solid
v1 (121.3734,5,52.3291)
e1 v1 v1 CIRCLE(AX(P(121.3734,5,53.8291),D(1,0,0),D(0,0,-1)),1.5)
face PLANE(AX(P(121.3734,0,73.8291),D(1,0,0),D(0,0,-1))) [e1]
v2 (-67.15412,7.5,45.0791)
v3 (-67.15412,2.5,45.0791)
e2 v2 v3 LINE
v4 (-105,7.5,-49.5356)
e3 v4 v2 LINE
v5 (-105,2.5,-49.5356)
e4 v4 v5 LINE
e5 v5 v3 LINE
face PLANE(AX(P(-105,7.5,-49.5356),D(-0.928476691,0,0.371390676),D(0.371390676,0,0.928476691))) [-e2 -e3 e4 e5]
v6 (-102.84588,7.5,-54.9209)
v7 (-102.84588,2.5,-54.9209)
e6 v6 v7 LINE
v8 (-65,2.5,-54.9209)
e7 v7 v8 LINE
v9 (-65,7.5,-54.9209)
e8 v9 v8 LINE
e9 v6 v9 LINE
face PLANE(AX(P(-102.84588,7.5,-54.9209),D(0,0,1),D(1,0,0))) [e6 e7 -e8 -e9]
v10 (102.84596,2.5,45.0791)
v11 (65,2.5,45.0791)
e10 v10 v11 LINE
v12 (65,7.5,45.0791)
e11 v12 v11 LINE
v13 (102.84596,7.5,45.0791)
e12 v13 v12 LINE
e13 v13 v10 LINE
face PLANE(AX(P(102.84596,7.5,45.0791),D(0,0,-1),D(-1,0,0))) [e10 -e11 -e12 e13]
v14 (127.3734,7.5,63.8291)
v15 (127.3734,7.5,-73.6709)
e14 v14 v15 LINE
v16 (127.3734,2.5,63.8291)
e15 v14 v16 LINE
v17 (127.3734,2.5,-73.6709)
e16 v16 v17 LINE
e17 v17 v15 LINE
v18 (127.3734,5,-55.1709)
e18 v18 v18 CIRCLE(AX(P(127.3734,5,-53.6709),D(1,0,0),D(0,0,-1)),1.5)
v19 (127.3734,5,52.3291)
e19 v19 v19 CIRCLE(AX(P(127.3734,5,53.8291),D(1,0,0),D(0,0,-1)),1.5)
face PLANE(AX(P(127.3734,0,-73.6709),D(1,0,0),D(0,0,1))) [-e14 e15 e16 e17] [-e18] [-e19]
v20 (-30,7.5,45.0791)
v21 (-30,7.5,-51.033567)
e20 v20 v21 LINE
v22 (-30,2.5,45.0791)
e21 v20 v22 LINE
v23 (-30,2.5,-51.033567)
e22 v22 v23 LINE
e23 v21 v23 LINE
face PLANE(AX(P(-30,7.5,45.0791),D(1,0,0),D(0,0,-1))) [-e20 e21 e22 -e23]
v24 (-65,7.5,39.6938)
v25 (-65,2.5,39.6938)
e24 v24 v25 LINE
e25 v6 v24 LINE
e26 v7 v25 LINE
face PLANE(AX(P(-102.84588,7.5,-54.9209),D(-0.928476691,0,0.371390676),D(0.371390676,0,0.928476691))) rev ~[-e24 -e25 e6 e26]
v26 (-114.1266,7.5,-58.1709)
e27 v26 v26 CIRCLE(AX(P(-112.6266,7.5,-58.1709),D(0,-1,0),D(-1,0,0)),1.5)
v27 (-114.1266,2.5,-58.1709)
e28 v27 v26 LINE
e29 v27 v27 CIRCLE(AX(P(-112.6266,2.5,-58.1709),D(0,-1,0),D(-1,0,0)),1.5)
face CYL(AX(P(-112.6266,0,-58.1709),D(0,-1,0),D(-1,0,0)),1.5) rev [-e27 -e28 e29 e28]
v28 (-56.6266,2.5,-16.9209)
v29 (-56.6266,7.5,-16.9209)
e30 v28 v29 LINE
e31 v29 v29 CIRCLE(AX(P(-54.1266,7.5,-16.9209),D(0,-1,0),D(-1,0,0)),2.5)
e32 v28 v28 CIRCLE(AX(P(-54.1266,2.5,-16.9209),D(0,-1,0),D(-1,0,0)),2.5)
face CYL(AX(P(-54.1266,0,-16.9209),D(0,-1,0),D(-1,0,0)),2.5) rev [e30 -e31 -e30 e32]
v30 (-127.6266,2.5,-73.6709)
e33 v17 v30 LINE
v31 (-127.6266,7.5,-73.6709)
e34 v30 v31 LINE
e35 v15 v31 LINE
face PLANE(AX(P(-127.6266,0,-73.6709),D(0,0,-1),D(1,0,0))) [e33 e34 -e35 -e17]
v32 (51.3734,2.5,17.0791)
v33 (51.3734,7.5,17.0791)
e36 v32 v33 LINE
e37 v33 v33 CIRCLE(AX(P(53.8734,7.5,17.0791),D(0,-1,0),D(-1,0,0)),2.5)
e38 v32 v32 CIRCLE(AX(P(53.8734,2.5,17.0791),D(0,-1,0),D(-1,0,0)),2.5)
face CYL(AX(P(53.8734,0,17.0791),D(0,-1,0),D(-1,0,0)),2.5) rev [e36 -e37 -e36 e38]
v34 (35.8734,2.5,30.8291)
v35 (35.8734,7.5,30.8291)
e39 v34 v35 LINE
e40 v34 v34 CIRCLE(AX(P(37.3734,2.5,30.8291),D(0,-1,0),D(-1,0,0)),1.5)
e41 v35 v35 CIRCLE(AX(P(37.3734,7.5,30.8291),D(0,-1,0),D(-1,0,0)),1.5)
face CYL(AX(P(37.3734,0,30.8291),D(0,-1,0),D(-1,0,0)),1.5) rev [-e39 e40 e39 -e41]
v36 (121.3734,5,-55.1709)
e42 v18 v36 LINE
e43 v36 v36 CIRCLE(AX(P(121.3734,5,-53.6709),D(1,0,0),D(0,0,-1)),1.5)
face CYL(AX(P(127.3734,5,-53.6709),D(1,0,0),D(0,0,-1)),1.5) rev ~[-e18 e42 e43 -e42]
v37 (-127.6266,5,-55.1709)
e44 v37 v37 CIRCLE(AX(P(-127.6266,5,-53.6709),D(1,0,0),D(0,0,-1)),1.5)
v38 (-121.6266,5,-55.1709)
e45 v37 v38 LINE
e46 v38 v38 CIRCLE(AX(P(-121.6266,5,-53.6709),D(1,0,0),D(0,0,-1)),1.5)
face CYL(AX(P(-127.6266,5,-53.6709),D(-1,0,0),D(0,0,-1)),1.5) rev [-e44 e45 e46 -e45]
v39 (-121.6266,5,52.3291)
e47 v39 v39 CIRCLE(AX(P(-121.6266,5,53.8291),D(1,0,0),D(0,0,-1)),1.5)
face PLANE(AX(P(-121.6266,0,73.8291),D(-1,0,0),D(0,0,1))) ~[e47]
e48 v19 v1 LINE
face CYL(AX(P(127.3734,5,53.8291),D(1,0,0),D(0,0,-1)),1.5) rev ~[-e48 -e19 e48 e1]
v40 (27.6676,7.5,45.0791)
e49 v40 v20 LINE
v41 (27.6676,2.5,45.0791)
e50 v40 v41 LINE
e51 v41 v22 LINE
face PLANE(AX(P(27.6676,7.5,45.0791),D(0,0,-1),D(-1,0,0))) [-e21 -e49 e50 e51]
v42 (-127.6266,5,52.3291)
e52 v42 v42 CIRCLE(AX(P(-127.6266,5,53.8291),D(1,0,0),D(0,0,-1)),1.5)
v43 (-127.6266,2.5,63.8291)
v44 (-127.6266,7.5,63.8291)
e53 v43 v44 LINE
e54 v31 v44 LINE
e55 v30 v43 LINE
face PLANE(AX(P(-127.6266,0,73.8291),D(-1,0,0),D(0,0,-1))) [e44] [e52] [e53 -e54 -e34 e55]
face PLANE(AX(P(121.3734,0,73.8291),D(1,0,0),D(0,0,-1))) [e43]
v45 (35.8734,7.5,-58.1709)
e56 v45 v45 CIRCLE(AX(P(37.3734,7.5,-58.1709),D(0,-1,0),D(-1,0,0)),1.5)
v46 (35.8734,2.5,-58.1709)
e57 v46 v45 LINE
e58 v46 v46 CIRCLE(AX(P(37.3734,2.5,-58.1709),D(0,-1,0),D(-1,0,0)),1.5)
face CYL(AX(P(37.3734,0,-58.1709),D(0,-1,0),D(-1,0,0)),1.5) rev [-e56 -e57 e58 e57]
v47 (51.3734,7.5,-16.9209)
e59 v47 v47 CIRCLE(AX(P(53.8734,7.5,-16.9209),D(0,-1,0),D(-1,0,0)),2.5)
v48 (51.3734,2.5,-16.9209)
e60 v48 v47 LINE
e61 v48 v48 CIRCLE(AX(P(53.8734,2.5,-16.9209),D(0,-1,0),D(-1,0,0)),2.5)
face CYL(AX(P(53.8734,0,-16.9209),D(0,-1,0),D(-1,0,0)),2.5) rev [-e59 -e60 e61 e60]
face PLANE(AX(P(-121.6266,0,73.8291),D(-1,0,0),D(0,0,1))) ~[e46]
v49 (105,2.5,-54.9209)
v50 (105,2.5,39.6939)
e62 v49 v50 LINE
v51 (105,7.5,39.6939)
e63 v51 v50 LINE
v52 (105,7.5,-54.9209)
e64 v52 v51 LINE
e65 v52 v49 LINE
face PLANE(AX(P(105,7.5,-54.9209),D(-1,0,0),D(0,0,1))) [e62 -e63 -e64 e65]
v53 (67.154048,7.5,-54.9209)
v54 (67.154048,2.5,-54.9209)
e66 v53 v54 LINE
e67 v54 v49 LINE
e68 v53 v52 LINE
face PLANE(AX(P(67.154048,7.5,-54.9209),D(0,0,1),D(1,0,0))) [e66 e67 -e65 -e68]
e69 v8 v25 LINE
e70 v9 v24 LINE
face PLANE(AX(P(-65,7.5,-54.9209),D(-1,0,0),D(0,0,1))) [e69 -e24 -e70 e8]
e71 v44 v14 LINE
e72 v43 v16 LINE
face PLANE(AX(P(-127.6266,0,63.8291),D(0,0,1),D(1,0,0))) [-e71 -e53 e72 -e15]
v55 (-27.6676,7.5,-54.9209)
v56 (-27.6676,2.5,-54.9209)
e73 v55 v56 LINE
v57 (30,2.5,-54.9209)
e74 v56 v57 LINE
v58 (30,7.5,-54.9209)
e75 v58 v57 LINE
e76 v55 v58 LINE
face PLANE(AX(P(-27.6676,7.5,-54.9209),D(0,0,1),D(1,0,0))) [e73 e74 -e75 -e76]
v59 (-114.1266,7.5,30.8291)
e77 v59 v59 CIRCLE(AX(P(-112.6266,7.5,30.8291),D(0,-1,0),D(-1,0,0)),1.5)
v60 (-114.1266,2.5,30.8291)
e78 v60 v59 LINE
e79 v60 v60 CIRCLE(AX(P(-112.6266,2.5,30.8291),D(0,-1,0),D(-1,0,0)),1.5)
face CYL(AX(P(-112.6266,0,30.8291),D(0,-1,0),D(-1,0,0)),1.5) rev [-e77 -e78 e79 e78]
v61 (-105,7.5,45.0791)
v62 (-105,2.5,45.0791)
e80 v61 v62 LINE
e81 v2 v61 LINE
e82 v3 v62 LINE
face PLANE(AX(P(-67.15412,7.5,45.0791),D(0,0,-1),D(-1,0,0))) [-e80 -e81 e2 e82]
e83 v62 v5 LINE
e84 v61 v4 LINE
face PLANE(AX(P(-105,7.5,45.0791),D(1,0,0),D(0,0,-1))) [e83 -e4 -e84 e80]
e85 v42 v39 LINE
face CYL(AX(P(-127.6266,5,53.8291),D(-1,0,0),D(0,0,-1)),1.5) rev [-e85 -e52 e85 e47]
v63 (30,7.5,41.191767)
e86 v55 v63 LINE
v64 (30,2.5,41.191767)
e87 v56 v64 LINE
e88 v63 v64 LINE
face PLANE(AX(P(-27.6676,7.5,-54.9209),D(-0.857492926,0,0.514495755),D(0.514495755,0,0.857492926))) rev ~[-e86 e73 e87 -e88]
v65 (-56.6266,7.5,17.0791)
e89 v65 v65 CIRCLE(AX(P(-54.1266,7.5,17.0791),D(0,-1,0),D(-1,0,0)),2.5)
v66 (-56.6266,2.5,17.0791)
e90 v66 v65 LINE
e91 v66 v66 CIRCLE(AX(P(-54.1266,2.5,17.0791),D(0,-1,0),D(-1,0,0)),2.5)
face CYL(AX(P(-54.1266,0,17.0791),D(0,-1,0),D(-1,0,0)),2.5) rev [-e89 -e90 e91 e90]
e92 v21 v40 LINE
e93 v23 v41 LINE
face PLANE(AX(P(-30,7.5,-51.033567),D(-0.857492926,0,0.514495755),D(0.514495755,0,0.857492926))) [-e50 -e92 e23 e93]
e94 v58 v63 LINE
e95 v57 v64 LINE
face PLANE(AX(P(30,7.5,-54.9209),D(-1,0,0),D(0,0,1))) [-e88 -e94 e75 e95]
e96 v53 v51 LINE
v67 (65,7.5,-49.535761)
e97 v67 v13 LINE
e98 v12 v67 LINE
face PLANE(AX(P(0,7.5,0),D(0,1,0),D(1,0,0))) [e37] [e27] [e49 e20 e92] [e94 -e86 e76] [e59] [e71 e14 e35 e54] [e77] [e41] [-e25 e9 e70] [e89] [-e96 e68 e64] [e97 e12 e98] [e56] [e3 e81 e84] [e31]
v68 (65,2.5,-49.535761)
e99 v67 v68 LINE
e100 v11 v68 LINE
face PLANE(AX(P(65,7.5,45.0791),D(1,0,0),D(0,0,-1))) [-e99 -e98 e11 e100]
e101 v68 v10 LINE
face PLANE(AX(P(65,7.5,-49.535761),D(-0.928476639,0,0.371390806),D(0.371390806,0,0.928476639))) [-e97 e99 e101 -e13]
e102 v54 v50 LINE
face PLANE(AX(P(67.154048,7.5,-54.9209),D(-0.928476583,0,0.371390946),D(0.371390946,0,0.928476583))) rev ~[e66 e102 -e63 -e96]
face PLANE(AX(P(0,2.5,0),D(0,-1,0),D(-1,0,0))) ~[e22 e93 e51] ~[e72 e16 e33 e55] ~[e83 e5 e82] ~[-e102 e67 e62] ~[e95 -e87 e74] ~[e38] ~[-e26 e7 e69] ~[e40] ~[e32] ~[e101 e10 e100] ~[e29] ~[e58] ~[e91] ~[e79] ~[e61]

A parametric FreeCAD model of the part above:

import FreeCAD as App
import Part
import Sketcher

doc = App.newDocument("Part")
body = doc.addObject("PartDesign::Body", "Body")

sketch1 = body.newObject("Sketcher::SketchObject", "Sketch")
sketch1.AttachmentSupport = (doc.getObject("XZ_Plane"), [""])
sketch1.MapMode = "FlatFace"
sketch1.addGeometry(Part.LineSegment(App.Vector(-127.6, 73.8, 0), App.Vector(127.4, 73.8, 0)), False)
sketch1.addGeometry(Part.LineSegment(App.Vector(127.4, 73.8, 0), App.Vector(127.4, -73.7, 0)), False)
sketch1.addGeometry(Part.LineSegment(App.Vector(127.4, -73.7, 0), App.Vector(-127.6, -73.7, 0)), False)
sketch1.addGeometry(Part.LineSegment(App.Vector(-127.6, -73.7, 0), App.Vector(-127.6, 73.8, 0)), False)
sketch1.addGeometry(Part.Circle(App.Vector(37.4, -58.2, 0), App.Vector(0, 0, 1), 1.5), False)
sketch1.addGeometry(Part.Circle(App.Vector(53.9, -16.9, 0), App.Vector(0, 0, 1), 2.5), False)
sketch1.addGeometry(Part.Circle(App.Vector(-112.6, -58.2, 0), App.Vector(0, 0, 1), 1.5), False)
sketch1.addGeometry(Part.Circle(App.Vector(-54.1, -16.9, 0), App.Vector(0, 0, 1), 2.5), False)
sketch1.addGeometry(Part.Circle(App.Vector(53.9, 17.1, 0), App.Vector(0, 0, 1), 2.5), False)
sketch1.addGeometry(Part.Circle(App.Vector(37.4, 30.8, 0), App.Vector(0, 0, 1), 1.5), False)
sketch1.addGeometry(Part.Circle(App.Vector(-54.1, 17.1, 0), App.Vector(0, 0, 1), 2.5), False)
sketch1.addGeometry(Part.Circle(App.Vector(-112.6, 30.8, 0), App.Vector(0, 0, 1), 1.5), False)
sketch1.addConstraint(Sketcher.Constraint("Coincident", 0, 2, 1, 1))
sketch1.addConstraint(Sketcher.Constraint("Coincident", 1, 2, 2, 1))
sketch1.addConstraint(Sketcher.Constraint("Coincident", 2, 2, 3, 1))
sketch1.addConstraint(Sketcher.Constraint("Coincident", 3, 2, 0, 1))
sketch1.addConstraint(Sketcher.Constraint("Horizontal", 0))
sketch1.addConstraint(Sketcher.Constraint("Vertical", 1))
sketch1.addConstraint(Sketcher.Constraint("Horizontal", 2))
sketch1.addConstraint(Sketcher.Constraint("Vertical", 3))
sketch1.addConstraint(Sketcher.Constraint("Equal", 4, 6))
sketch1.addConstraint(Sketcher.Constraint("Equal", 5, 7))
sketch1.addConstraint(Sketcher.Constraint("Equal", 7, 8))
sketch1.addConstraint(Sketcher.Constraint("Equal", 6, 9))
sketch1.addConstraint(Sketcher.Constraint("Equal", 8, 10))
sketch1.addConstraint(Sketcher.Constraint("Equal", 9, 11))
sketch1.addConstraint(Sketcher.Constraint("Horizontal", 4, 3, 6, 3))
sketch1.addConstraint(Sketcher.Constraint("Horizontal", 5, 3, 7, 3))
sketch1.addConstraint(Sketcher.Constraint("Horizontal", 8, 3, 10, 3))
sketch1.addConstraint(Sketcher.Constraint("Horizontal", 9, 3, 11, 3))
sketch1.addConstraint(Sketcher.Constraint("Vertical", 5, 3, 8, 3))
sketch1.addConstraint(Sketcher.Constraint("Vertical", 4, 3, 9, 3))
sketch1.addConstraint(Sketcher.Constraint("Vertical", 7, 3, 10, 3))
sketch1.addConstraint(Sketcher.Constraint("Vertical", 6, 3, 11, 3))
sketch1.addConstraint(Sketcher.Constraint("Diameter", 4, 3.0))
sketch1.addConstraint(Sketcher.Constraint("Diameter", 5, 5.0))
sketch1.addConstraint(Sketcher.Constraint("DistanceX", 0, 1, 0, 2, 255.0))
sketch1.addConstraint(Sketcher.Constraint("DistanceY", 1, 2, 1, 1, 147.5))
sketch1.addConstraint(Sketcher.Constraint("DistanceX", 6, 3, 4, 3, 150.0))
sketch1.addConstraint(Sketcher.Constraint("DistanceX", 7, 3, 5, 3, 108.0))
sketch1.addConstraint(Sketcher.Constraint("DistanceY", 5, 3, 8, 3, 34.0))
sketch1.addConstraint(Sketcher.Constraint("DistanceY", 4, 3, 9, 3, 89.0))
sketch1.addConstraint(Sketcher.Constraint("DistanceX", 9, 3, 0, 2, 90.0))
sketch1.addConstraint(Sketcher.Constraint("DistanceY", 9, 3, 0, 2, 43.0))
sketch1.addConstraint(Sketcher.Constraint("DistanceX", 4, 3, 5, 3, 16.5))
sketch1.addConstraint(Sketcher.Constraint("DistanceY", 4, 3, 5, 3, 41.25))
sketch1.addConstraint(Sketcher.Constraint("DistanceY", 4, 3, -1, 1, 58.171))
sketch1.addConstraint(Sketcher.Constraint("DistanceX", -1, 1, 4, 3, 37.3734))
pad1 = body.newObject("PartDesign::Pad", "Pad")
pad1.Profile = sketch1
pad1.Length = 10
pad1.Reversed = True

sketch2 = body.newObject("Sketcher::SketchObject", "Sketch001")
sketch2.AttachmentSupport = (doc.getObject("YZ_Plane"), [""])
sketch2.MapMode = "FlatFace"
sketch2.AttachmentOffset = App.Placement(App.Vector(0, 0, 127.3734), App.Rotation())
sketch2.addGeometry(Part.Circle(App.Vector(5, -53.7, 0), App.Vector(0, 0, 1), 1.5), False)
sketch2.addGeometry(Part.Circle(App.Vector(5, 53.8, 0), App.Vector(0, 0, 1), 1.5), False)
sketch2.addConstraint(Sketcher.Constraint("Equal", 0, 1))
sketch2.addConstraint(Sketcher.Constraint("Vertical", 0, 3, 1, 3))
sketch2.addConstraint(Sketcher.Constraint("Diameter", 0, 3.0))
sketch2.addConstraint(Sketcher.Constraint("DistanceX", -1, 1, 0, 3, 5.0))
sketch2.addConstraint(Sketcher.Constraint("DistanceY", 0, 3, 1, 3, 107.5))
sketch2.addConstraint(Sketcher.Constraint("DistanceY", 0, 3, -1, 1, 53.671))
pocket1 = body.newObject("PartDesign::Pocket", "Pocket")
pocket1.Profile = sketch2
pocket1.Length = 6
doc.recompute()

datumplane = body.newObject("PartDesign::Plane", "DatumPlane")
datumplane.AttachmentSupport = (doc.getObject("YZ_Plane"), [""])
datumplane.MapMode = "FlatFace"
datumplane.AttachmentOffset = App.Placement(App.Vector(0, 0, -0.1266), App.Rotation())
mirrored = body.newObject("PartDesign::Mirrored", "Mirrored")
mirrored.Originals = [pocket1]
mirrored.MirrorPlane = (datumplane, [""])
body.Tip = mirrored

sketch3 = body.newObject("Sketcher::SketchObject", "Sketch002")
sketch3.AttachmentSupport = (doc.getObject("XY_Plane"), [""])
sketch3.MapMode = "FlatFace"
sketch3.AttachmentOffset = App.Placement(App.Vector(0, 0, 73.8291), App.Rotation())
sketch3.addGeometry(Part.LineSegment(App.Vector(127, 0, 0), App.Vector(127, 10, 0)), False)
sketch3.addGeometry(Part.LineSegment(App.Vector(127, 10, 0), App.Vector(-128, 10, 0)), False)
sketch3.addGeometry(Part.LineSegment(App.Vector(-128, 10, 0), App.Vector(-128, 0, 0)), False)
sketch3.addGeometry(Part.LineSegment(App.Vector(-128, 0, 0), App.Vector(127, 0, 0)), False)
sketch3.addConstraint(Sketcher.Constraint("Coincident", 0, 2, 1, 1))
sketch3.addConstraint(Sketcher.Constraint("Coincident", 1, 2, 2, 1))
sketch3.addConstraint(Sketcher.Constraint("Coincident", 2, 2, 3, 1))
sketch3.addConstraint(Sketcher.Constraint("Coincident", 3, 2, 0, 1))
sketch3.addConstraint(Sketcher.Constraint("Vertical", 0))
sketch3.addConstraint(Sketcher.Constraint("Horizontal", 1))
sketch3.addConstraint(Sketcher.Constraint("Vertical", 2))
sketch3.addConstraint(Sketcher.Constraint("Horizontal", 3))
sketch3.addConstraint(Sketcher.Constraint("PointOnObject", 2, 2, -1))
sketch3.addConstraint(Sketcher.Constraint("DistanceX", 1, 2, 1, 1, 255.0))
sketch3.addConstraint(Sketcher.Constraint("DistanceY", 0, 1, 0, 2, 10.0))
sketch3.addConstraint(Sketcher.Constraint("DistanceX", -1, 1, 0, 2, 127.3734))
pocket2 = body.newObject("PartDesign::Pocket", "Pocket001")
pocket2.Profile = sketch3
pocket2.Length = 10

sketch4 = body.newObject("Sketcher::SketchObject", "Sketch003")
sketch4.AttachmentSupport = (doc.getObject("XZ_Plane"), [""])
sketch4.MapMode = "FlatFace"
sketch4.AttachmentOffset = App.Placement(App.Vector(0, 0, -10), App.Rotation())
sketch4.addGeometry(Part.LineSegment(App.Vector(-128, 64, 0), App.Vector(127, 64, 0)), False)
sketch4.addGeometry(Part.LineSegment(App.Vector(127, 64, 0), App.Vector(127, -74, 0)), False)
sketch4.addGeometry(Part.LineSegment(App.Vector(127, -74, 0), App.Vector(-128, -74, 0)), False)
sketch4.addGeometry(Part.LineSegment(App.Vector(-128, -74, 0), App.Vector(-128, 64, 0)), False)
sketch4.addConstraint(Sketcher.Constraint("Coincident", 0, 2, 1, 1))
sketch4.addConstraint(Sketcher.Constraint("Coincident", 1, 2, 2, 1))
sketch4.addConstraint(Sketcher.Constraint("Coincident", 2, 2, 3, 1))
sketch4.addConstraint(Sketcher.Constraint("Coincident", 3, 2, 0, 1))
sketch4.addConstraint(Sketcher.Constraint("Horizontal", 0))
sketch4.addConstraint(Sketcher.Constraint("Vertical", 1))
sketch4.addConstraint(Sketcher.Constraint("Horizontal", 2))
sketch4.addConstraint(Sketcher.Constraint("Vertical", 3))
sketch4.addConstraint(Sketcher.Constraint("DistanceX", 0, 1, 0, 2, 255.0))
sketch4.addConstraint(Sketcher.Constraint("DistanceY", 1, 2, 1, 1, 137.5))
sketch4.addConstraint(Sketcher.Constraint("DistanceY", -1, 1, 0, 2, 63.829))
sketch4.addConstraint(Sketcher.Constraint("DistanceX", -1, 1, 0, 2, 127.3734))
pocket3 = body.newObject("PartDesign::Pocket", "Pocket002")
pocket3.Profile = sketch4
pocket3.Length = 2.5
pocket3.Reversed = True
doc.recompute()

datumplane2 = body.newObject("PartDesign::Plane", "DatumPlane001")
datumplane2.AttachmentSupport = (doc.getObject("XZ_Plane"), [""])
datumplane2.MapMode = "FlatFace"
datumplane2.AttachmentOffset = App.Placement(App.Vector(0, 0, -5), App.Rotation())
mirrored2 = body.newObject("PartDesign::Mirrored", "Mirrored001")
mirrored2.Originals = [pocket3]
mirrored2.MirrorPlane = (datumplane2, [""])
body.Tip = mirrored2

sketch5 = body.newObject("Sketcher::SketchObject", "Sketch004")
sketch5.AttachmentSupport = (doc.getObject("XZ_Plane"), [""])
sketch5.MapMode = "FlatFace"
sketch5.AttachmentOffset = App.Placement(App.Vector(0, 0, -7.5), App.Rotation())
sketch5.addGeometry(Part.LineSegment(App.Vector(105, -55, 0), App.Vector(67, -55, 0)), False)
sketch5.addGeometry(Part.LineSegment(App.Vector(67, -55, 0), App.Vector(105, 40, 0)), False)
sketch5.addGeometry(Part.LineSegment(App.Vector(105, 40, 0), App.Vector(105, -55, 0)), False)
sketch5.addGeometry(Part.LineSegment(App.Vector(103, 45, 0), App.Vector(65, -50, 0)), False)
sketch5.addGeometry(Part.LineSegment(App.Vector(65, -50, 0), App.Vector(65, 45, 0)), False)
sketch5.addGeometry(Part.LineSegment(App.Vector(65, 45, 0), App.Vector(103, 45, 0)), False)
sketch5.addGeometry(Part.LineSegment(App.Vector(30, -55, 0), App.Vector(-28, -55, 0)), False)
sketch5.addGeometry(Part.LineSegment(App.Vector(-28, -55, 0), App.Vector(30, 41, 0)), False)
sketch5.addGeometry(Part.LineSegment(App.Vector(30, 41, 0), App.Vector(30, -55, 0)), False)
sketch5.addGeometry(Part.LineSegment(App.Vector(28, 45, 0), App.Vector(-30, -51, 0)), False)
sketch5.addGeometry(Part.LineSegment(App.Vector(-30, -51, 0), App.Vector(-30, 45, 0)), False)
sketch5.addGeometry(Part.LineSegment(App.Vector(-30, 45, 0), App.Vector(28, 45, 0)), False)
sketch5.addGeometry(Part.LineSegment(App.Vector(-65, -55, 0), App.Vector(-103, -55, 0)), False)
sketch5.addGeometry(Part.LineSegment(App.Vector(-103, -55, 0), App.Vector(-65, 40, 0)), False)
sketch5.addGeometry(Part.LineSegment(App.Vector(-65, 40, 0), App.Vector(-65, -55, 0)), False)
sketch5.addGeometry(Part.LineSegment(App.Vector(-67, 45, 0), App.Vector(-105, -50, 0)), False)
sketch5.addGeometry(Part.LineSegment(App.Vector(-105, -50, 0), App.Vector(-105, 45, 0)), False)
sketch5.addGeometry(Part.LineSegment(App.Vector(-105, 45, 0), App.Vector(-67, 45, 0)), False)
sketch5.addConstraint(Sketcher.Constraint("Coincident", 0, 2, 1, 1))
sketch5.addConstraint(Sketcher.Constraint("Coincident", 1, 2, 2, 1))
sketch5.addConstraint(Sketcher.Constraint("Coincident", 2, 2, 0, 1))
sketch5.addConstraint(Sketcher.Constraint("Coincident", 3, 2, 4, 1))
sketch5.addConstraint(Sketcher.Constraint("Coincident", 4, 2, 5, 1))
sketch5.addConstraint(Sketcher.Constraint("Coincident", 5, 2, 3, 1))
sketch5.addConstraint(Sketcher.Constraint("Coincident", 6, 2, 7, 1))
sketch5.addConstraint(Sketcher.Constraint("Coincident", 7, 2, 8, 1))
sketch5.addConstraint(Sketcher.Constraint("Coincident", 8, 2, 6, 1))
sketch5.addConstraint(Sketcher.Constraint("Coincident", 9, 2, 10, 1))
sketch5.addConstraint(Sketcher.Constraint("Coincident", 10, 2, 11, 1))
sketch5.addConstraint(Sketcher.Constraint("Coincident", 11, 2, 9, 1))
sketch5.addConstraint(Sketcher.Constraint("Coincident", 12, 2, 13, 1))
sketch5.addConstraint(Sketcher.Constraint("Coincident", 13, 2, 14, 1))
sketch5.addConstraint(Sketcher.Constraint("Coincident", 14, 2, 12, 1))
sketch5.addConstraint(Sketcher.Constraint("Coincident", 15, 2, 16, 1))
sketch5.addConstraint(Sketcher.Constraint("Coincident", 16, 2, 17, 1))
sketch5.addConstraint(Sketcher.Constraint("Coincident", 17, 2, 15, 1))
sketch5.addConstraint(Sketcher.Constraint("Horizontal", 0))
sketch5.addConstraint(Sketcher.Constraint("Vertical", 2))
sketch5.addConstraint(Sketcher.Constraint("Vertical", 4))
sketch5.addConstraint(Sketcher.Constraint("Horizontal", 5))
sketch5.addConstraint(Sketcher.Constraint("Horizontal", 6))
sketch5.addConstraint(Sketcher.Constraint("Vertical", 8))
sketch5.addConstraint(Sketcher.Constraint("Vertical", 10))
sketch5.addConstraint(Sketcher.Constraint("Horizontal", 11))
sketch5.addConstraint(Sketcher.Constraint("Horizontal", 12))
sketch5.addConstraint(Sketcher.Constraint("Vertical", 14))
sketch5.addConstraint(Sketcher.Constraint("Vertical", 16))
sketch5.addConstraint(Sketcher.Constraint("Horizontal", 17))
sketch5.addConstraint(Sketcher.Constraint("Parallel", 1, 3))
sketch5.addConstraint(Sketcher.Constraint("Parallel", 7, 9))
sketch5.addConstraint(Sketcher.Constraint("Parallel", 3, 13))
sketch5.addConstraint(Sketcher.Constraint("Parallel", 13, 15))
sketch5.addConstraint(Sketcher.Constraint("Horizontal", 2, 2, 6, 2))
sketch5.addConstraint(Sketcher.Constraint("Horizontal", 5, 2, 10, 2))
sketch5.addConstraint(Sketcher.Constraint("Horizontal", 8, 2, 12, 2))
sketch5.addConstraint(Sketcher.Constraint("Horizontal", 1, 2, 13, 2))
sketch5.addConstraint(Sketcher.Constraint("Horizontal", 3, 2, 15, 2))
sketch5.addConstraint(Sketcher.Constraint("Horizontal", 11, 2, 16, 2))
sketch5.addConstraint(Sketcher.Constraint("Equal", 0, 5))
sketch5.addConstraint(Sketcher.Constraint("Equal", 6, 11))
sketch5.addConstraint(Sketcher.Constraint("DistanceX", 3, 2, 2, 2, 40.0))
sketch5.addConstraint(Sketcher.Constraint("DistanceY", 0, 2, 4, 2, 100.0))
sketch5.addConstraint(Sketcher.Constraint("DistanceX", 7, 2, 4, 2, 35.0))
sketch5.addConstraint(Sketcher.Constraint("DistanceX", 9, 2, 8, 2, 60.0))
sketch5.addConstraint(Sketcher.Constraint("DistanceX", 13, 2, 10, 2, 35.0))
sketch5.addConstraint(Sketcher.Constraint("DistanceX", 15, 2, 14, 2, 40.0))
sketch5.addConstraint(Sketcher.Constraint("DistanceX", -1, 1, 1, 2, 105.0))
sketch5.addConstraint(Sketcher.Constraint("DistanceX", 0, 2, 0, 1, 37.846))
sketch5.addConstraint(Sketcher.Constraint("DistanceX", 6, 2, 6, 1, 57.6676))
sketch5.addConstraint(Sketcher.Constraint("DistanceY", 2, 2, 2, 1, 94.6148))
sketch5.addConstraint(Sketcher.Constraint("DistanceY", 8, 2, 8, 1, 96.1127))
sketch5.addConstraint(Sketcher.Constraint("DistanceY", 0, 2, -1, 1, 54.921))
pocket4 = body.newObject("PartDesign::Pocket", "Pocket003")
pocket4.Profile = sketch5
pocket4.Type = "ThroughAll"
pocket4.Reversed = True

doc.recompute()
